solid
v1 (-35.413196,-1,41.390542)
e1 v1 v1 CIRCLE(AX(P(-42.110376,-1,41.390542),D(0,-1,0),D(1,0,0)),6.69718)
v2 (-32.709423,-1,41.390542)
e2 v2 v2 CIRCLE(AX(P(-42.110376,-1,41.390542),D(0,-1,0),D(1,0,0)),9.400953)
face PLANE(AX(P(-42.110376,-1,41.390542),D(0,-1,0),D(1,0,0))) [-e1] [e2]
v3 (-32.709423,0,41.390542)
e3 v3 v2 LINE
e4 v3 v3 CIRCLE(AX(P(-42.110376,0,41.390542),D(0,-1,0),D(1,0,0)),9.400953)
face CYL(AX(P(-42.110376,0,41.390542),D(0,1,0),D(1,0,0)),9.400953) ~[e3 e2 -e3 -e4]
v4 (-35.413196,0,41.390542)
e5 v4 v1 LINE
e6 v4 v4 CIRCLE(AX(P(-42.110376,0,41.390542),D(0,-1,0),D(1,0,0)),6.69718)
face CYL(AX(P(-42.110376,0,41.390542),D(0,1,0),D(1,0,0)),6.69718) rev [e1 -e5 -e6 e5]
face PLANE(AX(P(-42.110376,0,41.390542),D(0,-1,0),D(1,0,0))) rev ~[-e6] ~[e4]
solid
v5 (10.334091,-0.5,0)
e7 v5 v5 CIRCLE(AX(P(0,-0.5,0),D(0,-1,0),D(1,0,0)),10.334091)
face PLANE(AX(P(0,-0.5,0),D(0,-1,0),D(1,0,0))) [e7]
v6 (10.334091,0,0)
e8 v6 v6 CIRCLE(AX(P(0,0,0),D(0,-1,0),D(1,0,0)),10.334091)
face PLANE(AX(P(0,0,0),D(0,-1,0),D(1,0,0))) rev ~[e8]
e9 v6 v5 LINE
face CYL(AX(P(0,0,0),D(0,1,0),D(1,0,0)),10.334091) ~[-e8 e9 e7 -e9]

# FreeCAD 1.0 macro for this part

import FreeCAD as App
import Part
import Sketcher

V = App.Vector
Q = App.Units.Quantity

doc = App.newDocument("Part")
params = doc.addObject("Spreadsheet::Sheet", "Params")
for row, (alias, value) in enumerate([
    ("pad1_length", "0.5 mm"),
    ("pad2_length", "1 mm"),
], start=1):
    params.set(f"A{row}", alias)
    params.set(f"B{row}", "=" + value)
    params.setAlias(f"B{row}", alias)

body = doc.addObject("PartDesign::Body", "Body")

sketch1 = doc.addObject("Sketcher::SketchObject", "Sketch")
body.addObject(sketch1)
sketch1.AttachmentSupport = (doc.XZ_Plane, [""])
sketch1.MapMode = "FlatFace"
sketch1.addGeometry(Part.Circle(V(0, 0, 0), V(0, 0, 1), 10), False)
sketch1.addConstraint([
    Sketcher.Constraint("Coincident", 0, 3, -1, 1),
    Sketcher.Constraint("Diameter", 0, Q("20.668182 mm")),
])
pad1 = doc.addObject("PartDesign::Pad", "Pad")
body.addObject(pad1)
pad1.Profile = sketch1
pad1.setExpression("Length", "Params.pad1_length")
body2 = doc.addObject("PartDesign::Body", "Body001")

sketch2 = doc.addObject("Sketcher::SketchObject", "Sketch001")
body2.addObject(sketch2)
sketch2.AttachmentSupport = (doc.getObject("XZ_Plane001"), [""])
sketch2.MapMode = "FlatFace"
sketch2.addGeometry([
    Part.Circle(V(-42, 41, 0), V(0, 0, 1), 9),
    Part.Circle(V(-42, 41, 0), V(0, 0, 1), 7),
], False)
sketch2.addConstraint([
    Sketcher.Constraint("Coincident", 1, 3, 0, 3),
    Sketcher.Constraint("Diameter", 1, Q("13.39436 mm")),
    Sketcher.Constraint("Diameter", 0, Q("18.801906 mm")),
    Sketcher.Constraint("DistanceX", 0, 3, -1, 1, Q("42.110376 mm")),
    Sketcher.Constraint("DistanceY", -1, 1, 0, 3, Q("41.390542 mm")),
])
pad2 = doc.addObject("PartDesign::Pad", "Pad001")
body2.addObject(pad2)
pad2.Profile = sketch2
pad2.setExpression("Length", "Params.pad2_length")

doc.recompute()
